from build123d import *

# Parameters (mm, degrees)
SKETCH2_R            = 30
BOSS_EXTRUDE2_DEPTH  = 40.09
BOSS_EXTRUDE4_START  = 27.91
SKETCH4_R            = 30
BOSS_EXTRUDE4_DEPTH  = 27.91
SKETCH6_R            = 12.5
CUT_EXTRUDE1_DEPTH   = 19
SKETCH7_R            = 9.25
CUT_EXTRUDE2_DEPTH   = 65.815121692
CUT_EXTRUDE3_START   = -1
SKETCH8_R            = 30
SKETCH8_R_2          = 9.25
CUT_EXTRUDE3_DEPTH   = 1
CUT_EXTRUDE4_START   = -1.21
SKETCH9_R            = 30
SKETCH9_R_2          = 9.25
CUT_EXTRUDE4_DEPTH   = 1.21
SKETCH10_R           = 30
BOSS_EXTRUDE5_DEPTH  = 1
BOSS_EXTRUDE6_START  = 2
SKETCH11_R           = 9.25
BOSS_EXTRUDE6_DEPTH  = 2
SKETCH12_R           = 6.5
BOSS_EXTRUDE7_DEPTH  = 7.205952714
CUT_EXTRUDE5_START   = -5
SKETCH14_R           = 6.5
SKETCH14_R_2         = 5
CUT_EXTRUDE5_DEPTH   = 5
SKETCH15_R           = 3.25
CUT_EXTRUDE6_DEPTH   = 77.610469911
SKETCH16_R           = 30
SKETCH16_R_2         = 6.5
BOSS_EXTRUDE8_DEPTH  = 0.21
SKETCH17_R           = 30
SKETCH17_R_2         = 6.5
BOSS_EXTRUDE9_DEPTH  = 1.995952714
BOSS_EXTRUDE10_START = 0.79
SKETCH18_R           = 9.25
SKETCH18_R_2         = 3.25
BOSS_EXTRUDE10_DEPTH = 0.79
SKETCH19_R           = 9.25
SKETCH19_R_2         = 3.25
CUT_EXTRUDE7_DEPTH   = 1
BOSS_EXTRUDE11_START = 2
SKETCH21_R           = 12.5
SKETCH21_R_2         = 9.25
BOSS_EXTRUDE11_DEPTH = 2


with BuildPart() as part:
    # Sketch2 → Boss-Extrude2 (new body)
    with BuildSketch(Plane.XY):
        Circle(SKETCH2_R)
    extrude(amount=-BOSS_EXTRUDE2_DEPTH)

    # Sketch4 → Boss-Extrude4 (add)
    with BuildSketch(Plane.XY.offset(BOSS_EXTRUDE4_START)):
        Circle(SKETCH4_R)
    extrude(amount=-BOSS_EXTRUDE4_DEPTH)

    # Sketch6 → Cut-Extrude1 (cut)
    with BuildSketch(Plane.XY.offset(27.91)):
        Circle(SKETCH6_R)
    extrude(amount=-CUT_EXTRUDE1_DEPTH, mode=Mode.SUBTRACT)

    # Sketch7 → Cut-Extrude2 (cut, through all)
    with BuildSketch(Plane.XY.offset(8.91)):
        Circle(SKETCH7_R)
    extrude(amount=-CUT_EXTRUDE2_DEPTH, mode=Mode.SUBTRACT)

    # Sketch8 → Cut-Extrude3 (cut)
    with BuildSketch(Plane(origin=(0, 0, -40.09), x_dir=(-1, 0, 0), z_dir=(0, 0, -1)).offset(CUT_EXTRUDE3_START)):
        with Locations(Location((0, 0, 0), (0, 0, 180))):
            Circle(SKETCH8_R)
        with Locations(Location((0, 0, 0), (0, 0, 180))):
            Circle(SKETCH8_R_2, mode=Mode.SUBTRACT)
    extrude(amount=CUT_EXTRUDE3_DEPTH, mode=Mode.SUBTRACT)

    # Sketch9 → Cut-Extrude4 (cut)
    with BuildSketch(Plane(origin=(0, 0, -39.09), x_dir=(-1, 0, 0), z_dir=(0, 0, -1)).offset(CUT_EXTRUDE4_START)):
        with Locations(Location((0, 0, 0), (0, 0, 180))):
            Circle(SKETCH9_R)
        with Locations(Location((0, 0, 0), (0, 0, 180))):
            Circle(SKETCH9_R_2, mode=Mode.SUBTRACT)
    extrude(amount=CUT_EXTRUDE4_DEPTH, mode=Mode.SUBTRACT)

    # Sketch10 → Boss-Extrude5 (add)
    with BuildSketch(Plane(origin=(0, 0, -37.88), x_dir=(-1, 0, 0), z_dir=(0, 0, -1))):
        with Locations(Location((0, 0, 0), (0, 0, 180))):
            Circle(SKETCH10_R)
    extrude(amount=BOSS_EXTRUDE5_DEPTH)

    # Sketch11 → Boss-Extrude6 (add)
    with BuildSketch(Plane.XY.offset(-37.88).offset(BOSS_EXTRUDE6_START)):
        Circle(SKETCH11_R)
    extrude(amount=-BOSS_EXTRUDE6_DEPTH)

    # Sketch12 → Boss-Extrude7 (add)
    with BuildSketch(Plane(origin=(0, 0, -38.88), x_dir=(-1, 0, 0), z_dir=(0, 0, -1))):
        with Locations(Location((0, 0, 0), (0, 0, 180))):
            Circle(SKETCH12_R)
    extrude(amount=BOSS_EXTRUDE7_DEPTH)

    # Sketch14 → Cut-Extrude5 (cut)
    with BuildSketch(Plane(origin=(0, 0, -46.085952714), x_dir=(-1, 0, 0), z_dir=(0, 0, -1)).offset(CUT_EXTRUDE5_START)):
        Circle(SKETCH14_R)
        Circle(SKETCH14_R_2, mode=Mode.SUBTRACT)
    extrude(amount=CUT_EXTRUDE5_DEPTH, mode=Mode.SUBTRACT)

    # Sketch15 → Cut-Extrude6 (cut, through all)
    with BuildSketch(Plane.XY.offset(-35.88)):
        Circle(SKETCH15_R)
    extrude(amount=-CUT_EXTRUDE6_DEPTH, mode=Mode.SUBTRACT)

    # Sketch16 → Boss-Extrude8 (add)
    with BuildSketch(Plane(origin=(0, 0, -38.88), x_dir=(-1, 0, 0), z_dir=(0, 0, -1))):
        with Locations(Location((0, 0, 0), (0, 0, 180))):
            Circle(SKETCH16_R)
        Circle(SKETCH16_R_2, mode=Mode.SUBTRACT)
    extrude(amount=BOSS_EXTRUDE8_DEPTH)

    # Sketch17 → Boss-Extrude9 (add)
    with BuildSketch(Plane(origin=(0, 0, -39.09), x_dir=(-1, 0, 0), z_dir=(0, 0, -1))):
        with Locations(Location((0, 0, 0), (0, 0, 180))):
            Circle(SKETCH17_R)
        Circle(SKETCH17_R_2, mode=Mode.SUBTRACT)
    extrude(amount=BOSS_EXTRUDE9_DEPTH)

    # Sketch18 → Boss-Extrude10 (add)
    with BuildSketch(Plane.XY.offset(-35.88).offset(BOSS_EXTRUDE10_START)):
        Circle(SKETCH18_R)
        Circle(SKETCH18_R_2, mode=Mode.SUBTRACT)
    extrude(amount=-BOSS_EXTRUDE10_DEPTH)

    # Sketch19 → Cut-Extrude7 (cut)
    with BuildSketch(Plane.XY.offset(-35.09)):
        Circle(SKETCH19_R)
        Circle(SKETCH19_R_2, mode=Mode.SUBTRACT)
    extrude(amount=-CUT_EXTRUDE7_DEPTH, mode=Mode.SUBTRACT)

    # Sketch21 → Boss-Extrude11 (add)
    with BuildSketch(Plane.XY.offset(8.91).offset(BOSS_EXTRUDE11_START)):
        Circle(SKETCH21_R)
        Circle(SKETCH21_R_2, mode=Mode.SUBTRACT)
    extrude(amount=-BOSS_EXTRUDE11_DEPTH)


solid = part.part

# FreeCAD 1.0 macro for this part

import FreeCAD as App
import Part
import Sketcher
from FreeCAD import Vector
Q = App.Units.Quantity

doc = App.newDocument("Part")
body = doc.addObject("PartDesign::Body", "Body")

# Sketch on XY plane
sketch1 = doc.addObject("Sketcher::SketchObject", "Sketch")
body.addObject(sketch1)
sketch1.AttachmentSupport = (doc.XY_Plane, [""])
sketch1.MapMode = "FlatFace"
sketch1.addGeometry(Part.Circle(Vector(0, 0, 0), Vector(0, 0, 1), 30), False)
sketch1.addConstraint([
    Sketcher.Constraint("Coincident", 0, 3, -1, 1),
    Sketcher.Constraint("Diameter", 0, Q("60 mm")),
])
pad1 = doc.addObject("PartDesign::Pad", "Pad")
body.addObject(pad1)
pad1.Profile = sketch1
pad1.Length = 40.09
pad1.Reversed = True

# Sketch on XY plane
sketch2 = doc.addObject("Sketcher::SketchObject", "Sketch001")
body.addObject(sketch2)
sketch2.AttachmentSupport = (doc.XY_Plane, [""])
sketch2.MapMode = "FlatFace"
sketch2.AttachmentOffset = App.Placement(Vector(0, 0, 27.91), App.Rotation())
sketch2.addGeometry(Part.Circle(Vector(0, 0, 0), Vector(0, 0, 1), 30), False)
sketch2.addConstraint([
    Sketcher.Constraint("Coincident", 0, 3, -1, 1),
    Sketcher.Constraint("Diameter", 0, Q("60 mm")),
])
pad2 = doc.addObject("PartDesign::Pad", "Pad001")
body.addObject(pad2)
pad2.Profile = sketch2
pad2.Length = 27.91
pad2.Reversed = True

# Sketch on XY plane
sketch3 = doc.addObject("Sketcher::SketchObject", "Sketch002")
body.addObject(sketch3)
sketch3.AttachmentSupport = (doc.XY_Plane, [""])
sketch3.MapMode = "FlatFace"
sketch3.AttachmentOffset = App.Placement(Vector(0, 0, 27.91), App.Rotation())
sketch3.addGeometry(Part.Circle(Vector(0, 0, 0), Vector(0, 0, 1), 12.5), False)
sketch3.addConstraint([
    Sketcher.Constraint("Coincident", 0, 3, -1, 1),
    Sketcher.Constraint("Diameter", 0, Q("25 mm")),
])
pocket1 = doc.addObject("PartDesign::Pocket", "Pocket")
body.addObject(pocket1)
pocket1.Profile = sketch3
pocket1.Length = 19

# Sketch on XY plane
sketch4 = doc.addObject("Sketcher::SketchObject", "Sketch003")
body.addObject(sketch4)
sketch4.AttachmentSupport = (doc.XY_Plane, [""])
sketch4.MapMode = "FlatFace"
sketch4.AttachmentOffset = App.Placement(Vector(0, 0, 8.91), App.Rotation())
sketch4.addGeometry(Part.Circle(Vector(0, 0, 0), Vector(0, 0, 1), 9.25), False)
sketch4.addConstraint([
    Sketcher.Constraint("Coincident", 0, 3, -1, 1),
    Sketcher.Constraint("Diameter", 0, Q("18.5 mm")),
])
pocket2 = doc.addObject("PartDesign::Pocket", "Pocket001")
body.addObject(pocket2)
pocket2.Profile = sketch4
pocket2.Type = "ThroughAll"

# Sketch on XY plane
sketch5 = doc.addObject("Sketcher::SketchObject", "Sketch004")
body.addObject(sketch5)
sketch5.AttachmentSupport = (doc.XY_Plane, [""])
sketch5.MapMode = "FlatFace"
sketch5.AttachmentOffset = App.Placement(Vector(0, 0, -39.09), App.Rotation())
sketch5.addGeometry([
    Part.Circle(Vector(0, 0, 0), Vector(0, 0, 1), 30),
    Part.Circle(Vector(0, 0, 0), Vector(0, 0, 1), 9.25),
], False)
sketch5.addConstraint([
    Sketcher.Constraint("Coincident", 0, 3, -1, 1),
    Sketcher.Constraint("Coincident", 1, 3, -1, 1),
    Sketcher.Constraint("Diameter", 0, Q("60 mm")),
    Sketcher.Constraint("Diameter", 1, Q("18.5 mm")),
])
pocket3 = doc.addObject("PartDesign::Pocket", "Pocket002")
body.addObject(pocket3)
pocket3.Profile = sketch5
pocket3.Length = 1

# Sketch on XY plane
sketch6 = doc.addObject("Sketcher::SketchObject", "Sketch005")
body.addObject(sketch6)
sketch6.AttachmentSupport = (doc.XY_Plane, [""])
sketch6.MapMode = "FlatFace"
sketch6.AttachmentOffset = App.Placement(Vector(0, 0, -37.88), App.Rotation())
sketch6.addGeometry([
    Part.Circle(Vector(0, 0, 0), Vector(0, 0, 1), 30),
    Part.Circle(Vector(0, 0, 0), Vector(0, 0, 1), 9.25),
], False)
sketch6.addConstraint([
    Sketcher.Constraint("Coincident", 0, 3, -1, 1),
    Sketcher.Constraint("Coincident", 1, 3, -1, 1),
    Sketcher.Constraint("Diameter", 0, Q("60 mm")),
    Sketcher.Constraint("Diameter", 1, Q("18.5 mm")),
])
pocket4 = doc.addObject("PartDesign::Pocket", "Pocket003")
body.addObject(pocket4)
pocket4.Profile = sketch6
pocket4.Length = 1.21

# Sketch on XY plane
sketch7 = doc.addObject("Sketcher::SketchObject", "Sketch006")
body.addObject(sketch7)
sketch7.AttachmentSupport = (doc.XY_Plane, [""])
sketch7.MapMode = "FlatFace"
sketch7.AttachmentOffset = App.Placement(Vector(0, 0, -37.88), App.Rotation())
sketch7.addGeometry(Part.Circle(Vector(0, 0, 0), Vector(0, 0, 1), 30), False)
sketch7.addConstraint([
    Sketcher.Constraint("Coincident", 0, 3, -1, 1),
    Sketcher.Constraint("Diameter", 0, Q("60 mm")),
])
pad3 = doc.addObject("PartDesign::Pad", "Pad002")
body.addObject(pad3)
pad3.Profile = sketch7
pad3.Length = 1
pad3.Reversed = True

# Sketch on XY plane
sketch8 = doc.addObject("Sketcher::SketchObject", "Sketch007")
body.addObject(sketch8)
sketch8.AttachmentSupport = (doc.XY_Plane, [""])
sketch8.MapMode = "FlatFace"
sketch8.AttachmentOffset = App.Placement(Vector(0, 0, -35.88), App.Rotation())
sketch8.addGeometry(Part.Circle(Vector(0, 0, 0), Vector(0, 0, 1), 9.25), False)
sketch8.addConstraint([
    Sketcher.Constraint("Coincident", 0, 3, -1, 1),
    Sketcher.Constraint("Diameter", 0, Q("18.5 mm")),
])
pad4 = doc.addObject("PartDesign::Pad", "Pad003")
body.addObject(pad4)
pad4.Profile = sketch8
pad4.Length = 2
pad4.Reversed = True

# Sketch on XY plane
sketch9 = doc.addObject("Sketcher::SketchObject", "Sketch008")
body.addObject(sketch9)
sketch9.AttachmentSupport = (doc.XY_Plane, [""])
sketch9.MapMode = "FlatFace"
sketch9.AttachmentOffset = App.Placement(Vector(0, 0, -38.88), App.Rotation())
sketch9.addGeometry(Part.Circle(Vector(0, 0, 0), Vector(0, 0, 1), 6.5), False)
sketch9.addConstraint([
    Sketcher.Constraint("Coincident", 0, 3, -1, 1),
    Sketcher.Constraint("Diameter", 0, Q("13 mm")),
])
pad5 = doc.addObject("PartDesign::Pad", "Pad004")
body.addObject(pad5)
pad5.Profile = sketch9
pad5.Length = 7.205953
pad5.Reversed = True

# Sketch on XY plane
sketch10 = doc.addObject("Sketcher::SketchObject", "Sketch009")
body.addObject(sketch10)
sketch10.AttachmentSupport = (doc.XY_Plane, [""])
sketch10.MapMode = "FlatFace"
sketch10.AttachmentOffset = App.Placement(Vector(0, 0, -41.085953), App.Rotation())
sketch10.addGeometry([
    Part.Circle(Vector(0, 0, 0), Vector(0, 0, 1), 6.5),
    Part.Circle(Vector(0, 0, 0), Vector(0, 0, 1), 5),
], False)
sketch10.addConstraint([
    Sketcher.Constraint("Coincident", 0, 3, -1, 1),
    Sketcher.Constraint("Coincident", 1, 3, -1, 1),
    Sketcher.Constraint("Diameter", 0, Q("13 mm")),
    Sketcher.Constraint("Diameter", 1, Q("10 mm")),
])
pocket5 = doc.addObject("PartDesign::Pocket", "Pocket004")
body.addObject(pocket5)
pocket5.Profile = sketch10
pocket5.Length = 5

# Sketch on XY plane
sketch11 = doc.addObject("Sketcher::SketchObject", "Sketch010")
body.addObject(sketch11)
sketch11.AttachmentSupport = (doc.XY_Plane, [""])
sketch11.MapMode = "FlatFace"
sketch11.AttachmentOffset = App.Placement(Vector(0, 0, -35.88), App.Rotation())
sketch11.addGeometry(Part.Circle(Vector(0, 0, 0), Vector(0, 0, 1), 3.25), False)
sketch11.addConstraint([
    Sketcher.Constraint("Coincident", 0, 3, -1, 1),
    Sketcher.Constraint("Diameter", 0, Q("6.5 mm")),
])
pocket6 = doc.addObject("PartDesign::Pocket", "Pocket005")
body.addObject(pocket6)
pocket6.Profile = sketch11
pocket6.Type = "ThroughAll"

# Sketch on XY plane
sketch12 = doc.addObject("Sketcher::SketchObject", "Sketch011")
body.addObject(sketch12)
sketch12.AttachmentSupport = (doc.XY_Plane, [""])
sketch12.MapMode = "FlatFace"
sketch12.AttachmentOffset = App.Placement(Vector(0, 0, -38.88), App.Rotation())
sketch12.addGeometry([
    Part.Circle(Vector(0, 0, 0), Vector(0, 0, 1), 30),
    Part.Circle(Vector(0, 0, 0), Vector(0, 0, 1), 6.5),
], False)
sketch12.addConstraint([
    Sketcher.Constraint("Coincident", 0, 3, -1, 1),
    Sketcher.Constraint("Coincident", 1, 3, -1, 1),
    Sketcher.Constraint("Diameter", 0, Q("60 mm")),
    Sketcher.Constraint("Diameter", 1, Q("13 mm")),
])
pad6 = doc.addObject("PartDesign::Pad", "Pad005")
body.addObject(pad6)
pad6.Profile = sketch12
pad6.Length = 0.21
pad6.Reversed = True

# Sketch on XY plane
sketch13 = doc.addObject("Sketcher::SketchObject", "Sketch012")
body.addObject(sketch13)
sketch13.AttachmentSupport = (doc.XY_Plane, [""])
sketch13.MapMode = "FlatFace"
sketch13.AttachmentOffset = App.Placement(Vector(0, 0, -39.09), App.Rotation())
sketch13.addGeometry([
    Part.Circle(Vector(0, 0, 0), Vector(0, 0, 1), 30),
    Part.Circle(Vector(0, 0, 0), Vector(0, 0, 1), 6.5),
], False)
sketch13.addConstraint([
    Sketcher.Constraint("Coincident", 0, 3, -1, 1),
    Sketcher.Constraint("Coincident", 1, 3, -1, 1),
    Sketcher.Constraint("Diameter", 0, Q("60 mm")),
    Sketcher.Constraint("Diameter", 1, Q("13 mm")),
])
pad7 = doc.addObject("PartDesign::Pad", "Pad006")
body.addObject(pad7)
pad7.Profile = sketch13
pad7.Length = 1.995953
pad7.Reversed = True

# Sketch on XY plane
sketch14 = doc.addObject("Sketcher::SketchObject", "Sketch013")
body.addObject(sketch14)
sketch14.AttachmentSupport = (doc.XY_Plane, [""])
sketch14.MapMode = "FlatFace"
sketch14.AttachmentOffset = App.Placement(Vector(0, 0, -35.09), App.Rotation())
sketch14.addGeometry([
    Part.Circle(Vector(0, 0, 0), Vector(0, 0, 1), 9.25),
    Part.Circle(Vector(0, 0, 0), Vector(0, 0, 1), 3.25),
], False)
sketch14.addConstraint([
    Sketcher.Constraint("Coincident", 0, 3, -1, 1),
    Sketcher.Constraint("Coincident", 1, 3, -1, 1),
    Sketcher.Constraint("Diameter", 0, Q("18.5 mm")),
    Sketcher.Constraint("Diameter", 1, Q("6.5 mm")),
])
pad8 = doc.addObject("PartDesign::Pad", "Pad007")
body.addObject(pad8)
pad8.Profile = sketch14
pad8.Length = 0.79
pad8.Reversed = True

# Sketch on XY plane
sketch15 = doc.addObject("Sketcher::SketchObject", "Sketch014")
body.addObject(sketch15)
sketch15.AttachmentSupport = (doc.XY_Plane, [""])
sketch15.MapMode = "FlatFace"
sketch15.AttachmentOffset = App.Placement(Vector(0, 0, -35.09), App.Rotation())
sketch15.addGeometry([
    Part.Circle(Vector(0, 0, 0), Vector(0, 0, 1), 9.25),
    Part.Circle(Vector(0, 0, 0), Vector(0, 0, 1), 3.25),
], False)
sketch15.addConstraint([
    Sketcher.Constraint("Coincident", 0, 3, -1, 1),
    Sketcher.Constraint("Coincident", 1, 3, -1, 1),
    Sketcher.Constraint("Diameter", 0, Q("18.5 mm")),
    Sketcher.Constraint("Diameter", 1, Q("6.5 mm")),
])
pocket7 = doc.addObject("PartDesign::Pocket", "Pocket006")
body.addObject(pocket7)
pocket7.Profile = sketch15
pocket7.Length = 1

# Sketch on XY plane
sketch16 = doc.addObject("Sketcher::SketchObject", "Sketch015")
body.addObject(sketch16)
sketch16.AttachmentSupport = (doc.XY_Plane, [""])
sketch16.MapMode = "FlatFace"
sketch16.AttachmentOffset = App.Placement(Vector(0, 0, 10.91), App.Rotation())
sketch16.addGeometry([
    Part.Circle(Vector(0, 0, 0), Vector(0, 0, 1), 12.5),
    Part.Circle(Vector(0, 0, 0), Vector(0, 0, 1), 9.25),
], False)
sketch16.addConstraint([
    Sketcher.Constraint("Coincident", 0, 3, -1, 1),
    Sketcher.Constraint("Coincident", 1, 3, -1, 1),
    Sketcher.Constraint("Diameter", 0, Q("25 mm")),
    Sketcher.Constraint("Diameter", 1, Q("18.5 mm")),
])
pad9 = doc.addObject("PartDesign::Pad", "Pad008")
body.addObject(pad9)
pad9.Profile = sketch16
pad9.Length = 2
pad9.Reversed = True

doc.recompute()
